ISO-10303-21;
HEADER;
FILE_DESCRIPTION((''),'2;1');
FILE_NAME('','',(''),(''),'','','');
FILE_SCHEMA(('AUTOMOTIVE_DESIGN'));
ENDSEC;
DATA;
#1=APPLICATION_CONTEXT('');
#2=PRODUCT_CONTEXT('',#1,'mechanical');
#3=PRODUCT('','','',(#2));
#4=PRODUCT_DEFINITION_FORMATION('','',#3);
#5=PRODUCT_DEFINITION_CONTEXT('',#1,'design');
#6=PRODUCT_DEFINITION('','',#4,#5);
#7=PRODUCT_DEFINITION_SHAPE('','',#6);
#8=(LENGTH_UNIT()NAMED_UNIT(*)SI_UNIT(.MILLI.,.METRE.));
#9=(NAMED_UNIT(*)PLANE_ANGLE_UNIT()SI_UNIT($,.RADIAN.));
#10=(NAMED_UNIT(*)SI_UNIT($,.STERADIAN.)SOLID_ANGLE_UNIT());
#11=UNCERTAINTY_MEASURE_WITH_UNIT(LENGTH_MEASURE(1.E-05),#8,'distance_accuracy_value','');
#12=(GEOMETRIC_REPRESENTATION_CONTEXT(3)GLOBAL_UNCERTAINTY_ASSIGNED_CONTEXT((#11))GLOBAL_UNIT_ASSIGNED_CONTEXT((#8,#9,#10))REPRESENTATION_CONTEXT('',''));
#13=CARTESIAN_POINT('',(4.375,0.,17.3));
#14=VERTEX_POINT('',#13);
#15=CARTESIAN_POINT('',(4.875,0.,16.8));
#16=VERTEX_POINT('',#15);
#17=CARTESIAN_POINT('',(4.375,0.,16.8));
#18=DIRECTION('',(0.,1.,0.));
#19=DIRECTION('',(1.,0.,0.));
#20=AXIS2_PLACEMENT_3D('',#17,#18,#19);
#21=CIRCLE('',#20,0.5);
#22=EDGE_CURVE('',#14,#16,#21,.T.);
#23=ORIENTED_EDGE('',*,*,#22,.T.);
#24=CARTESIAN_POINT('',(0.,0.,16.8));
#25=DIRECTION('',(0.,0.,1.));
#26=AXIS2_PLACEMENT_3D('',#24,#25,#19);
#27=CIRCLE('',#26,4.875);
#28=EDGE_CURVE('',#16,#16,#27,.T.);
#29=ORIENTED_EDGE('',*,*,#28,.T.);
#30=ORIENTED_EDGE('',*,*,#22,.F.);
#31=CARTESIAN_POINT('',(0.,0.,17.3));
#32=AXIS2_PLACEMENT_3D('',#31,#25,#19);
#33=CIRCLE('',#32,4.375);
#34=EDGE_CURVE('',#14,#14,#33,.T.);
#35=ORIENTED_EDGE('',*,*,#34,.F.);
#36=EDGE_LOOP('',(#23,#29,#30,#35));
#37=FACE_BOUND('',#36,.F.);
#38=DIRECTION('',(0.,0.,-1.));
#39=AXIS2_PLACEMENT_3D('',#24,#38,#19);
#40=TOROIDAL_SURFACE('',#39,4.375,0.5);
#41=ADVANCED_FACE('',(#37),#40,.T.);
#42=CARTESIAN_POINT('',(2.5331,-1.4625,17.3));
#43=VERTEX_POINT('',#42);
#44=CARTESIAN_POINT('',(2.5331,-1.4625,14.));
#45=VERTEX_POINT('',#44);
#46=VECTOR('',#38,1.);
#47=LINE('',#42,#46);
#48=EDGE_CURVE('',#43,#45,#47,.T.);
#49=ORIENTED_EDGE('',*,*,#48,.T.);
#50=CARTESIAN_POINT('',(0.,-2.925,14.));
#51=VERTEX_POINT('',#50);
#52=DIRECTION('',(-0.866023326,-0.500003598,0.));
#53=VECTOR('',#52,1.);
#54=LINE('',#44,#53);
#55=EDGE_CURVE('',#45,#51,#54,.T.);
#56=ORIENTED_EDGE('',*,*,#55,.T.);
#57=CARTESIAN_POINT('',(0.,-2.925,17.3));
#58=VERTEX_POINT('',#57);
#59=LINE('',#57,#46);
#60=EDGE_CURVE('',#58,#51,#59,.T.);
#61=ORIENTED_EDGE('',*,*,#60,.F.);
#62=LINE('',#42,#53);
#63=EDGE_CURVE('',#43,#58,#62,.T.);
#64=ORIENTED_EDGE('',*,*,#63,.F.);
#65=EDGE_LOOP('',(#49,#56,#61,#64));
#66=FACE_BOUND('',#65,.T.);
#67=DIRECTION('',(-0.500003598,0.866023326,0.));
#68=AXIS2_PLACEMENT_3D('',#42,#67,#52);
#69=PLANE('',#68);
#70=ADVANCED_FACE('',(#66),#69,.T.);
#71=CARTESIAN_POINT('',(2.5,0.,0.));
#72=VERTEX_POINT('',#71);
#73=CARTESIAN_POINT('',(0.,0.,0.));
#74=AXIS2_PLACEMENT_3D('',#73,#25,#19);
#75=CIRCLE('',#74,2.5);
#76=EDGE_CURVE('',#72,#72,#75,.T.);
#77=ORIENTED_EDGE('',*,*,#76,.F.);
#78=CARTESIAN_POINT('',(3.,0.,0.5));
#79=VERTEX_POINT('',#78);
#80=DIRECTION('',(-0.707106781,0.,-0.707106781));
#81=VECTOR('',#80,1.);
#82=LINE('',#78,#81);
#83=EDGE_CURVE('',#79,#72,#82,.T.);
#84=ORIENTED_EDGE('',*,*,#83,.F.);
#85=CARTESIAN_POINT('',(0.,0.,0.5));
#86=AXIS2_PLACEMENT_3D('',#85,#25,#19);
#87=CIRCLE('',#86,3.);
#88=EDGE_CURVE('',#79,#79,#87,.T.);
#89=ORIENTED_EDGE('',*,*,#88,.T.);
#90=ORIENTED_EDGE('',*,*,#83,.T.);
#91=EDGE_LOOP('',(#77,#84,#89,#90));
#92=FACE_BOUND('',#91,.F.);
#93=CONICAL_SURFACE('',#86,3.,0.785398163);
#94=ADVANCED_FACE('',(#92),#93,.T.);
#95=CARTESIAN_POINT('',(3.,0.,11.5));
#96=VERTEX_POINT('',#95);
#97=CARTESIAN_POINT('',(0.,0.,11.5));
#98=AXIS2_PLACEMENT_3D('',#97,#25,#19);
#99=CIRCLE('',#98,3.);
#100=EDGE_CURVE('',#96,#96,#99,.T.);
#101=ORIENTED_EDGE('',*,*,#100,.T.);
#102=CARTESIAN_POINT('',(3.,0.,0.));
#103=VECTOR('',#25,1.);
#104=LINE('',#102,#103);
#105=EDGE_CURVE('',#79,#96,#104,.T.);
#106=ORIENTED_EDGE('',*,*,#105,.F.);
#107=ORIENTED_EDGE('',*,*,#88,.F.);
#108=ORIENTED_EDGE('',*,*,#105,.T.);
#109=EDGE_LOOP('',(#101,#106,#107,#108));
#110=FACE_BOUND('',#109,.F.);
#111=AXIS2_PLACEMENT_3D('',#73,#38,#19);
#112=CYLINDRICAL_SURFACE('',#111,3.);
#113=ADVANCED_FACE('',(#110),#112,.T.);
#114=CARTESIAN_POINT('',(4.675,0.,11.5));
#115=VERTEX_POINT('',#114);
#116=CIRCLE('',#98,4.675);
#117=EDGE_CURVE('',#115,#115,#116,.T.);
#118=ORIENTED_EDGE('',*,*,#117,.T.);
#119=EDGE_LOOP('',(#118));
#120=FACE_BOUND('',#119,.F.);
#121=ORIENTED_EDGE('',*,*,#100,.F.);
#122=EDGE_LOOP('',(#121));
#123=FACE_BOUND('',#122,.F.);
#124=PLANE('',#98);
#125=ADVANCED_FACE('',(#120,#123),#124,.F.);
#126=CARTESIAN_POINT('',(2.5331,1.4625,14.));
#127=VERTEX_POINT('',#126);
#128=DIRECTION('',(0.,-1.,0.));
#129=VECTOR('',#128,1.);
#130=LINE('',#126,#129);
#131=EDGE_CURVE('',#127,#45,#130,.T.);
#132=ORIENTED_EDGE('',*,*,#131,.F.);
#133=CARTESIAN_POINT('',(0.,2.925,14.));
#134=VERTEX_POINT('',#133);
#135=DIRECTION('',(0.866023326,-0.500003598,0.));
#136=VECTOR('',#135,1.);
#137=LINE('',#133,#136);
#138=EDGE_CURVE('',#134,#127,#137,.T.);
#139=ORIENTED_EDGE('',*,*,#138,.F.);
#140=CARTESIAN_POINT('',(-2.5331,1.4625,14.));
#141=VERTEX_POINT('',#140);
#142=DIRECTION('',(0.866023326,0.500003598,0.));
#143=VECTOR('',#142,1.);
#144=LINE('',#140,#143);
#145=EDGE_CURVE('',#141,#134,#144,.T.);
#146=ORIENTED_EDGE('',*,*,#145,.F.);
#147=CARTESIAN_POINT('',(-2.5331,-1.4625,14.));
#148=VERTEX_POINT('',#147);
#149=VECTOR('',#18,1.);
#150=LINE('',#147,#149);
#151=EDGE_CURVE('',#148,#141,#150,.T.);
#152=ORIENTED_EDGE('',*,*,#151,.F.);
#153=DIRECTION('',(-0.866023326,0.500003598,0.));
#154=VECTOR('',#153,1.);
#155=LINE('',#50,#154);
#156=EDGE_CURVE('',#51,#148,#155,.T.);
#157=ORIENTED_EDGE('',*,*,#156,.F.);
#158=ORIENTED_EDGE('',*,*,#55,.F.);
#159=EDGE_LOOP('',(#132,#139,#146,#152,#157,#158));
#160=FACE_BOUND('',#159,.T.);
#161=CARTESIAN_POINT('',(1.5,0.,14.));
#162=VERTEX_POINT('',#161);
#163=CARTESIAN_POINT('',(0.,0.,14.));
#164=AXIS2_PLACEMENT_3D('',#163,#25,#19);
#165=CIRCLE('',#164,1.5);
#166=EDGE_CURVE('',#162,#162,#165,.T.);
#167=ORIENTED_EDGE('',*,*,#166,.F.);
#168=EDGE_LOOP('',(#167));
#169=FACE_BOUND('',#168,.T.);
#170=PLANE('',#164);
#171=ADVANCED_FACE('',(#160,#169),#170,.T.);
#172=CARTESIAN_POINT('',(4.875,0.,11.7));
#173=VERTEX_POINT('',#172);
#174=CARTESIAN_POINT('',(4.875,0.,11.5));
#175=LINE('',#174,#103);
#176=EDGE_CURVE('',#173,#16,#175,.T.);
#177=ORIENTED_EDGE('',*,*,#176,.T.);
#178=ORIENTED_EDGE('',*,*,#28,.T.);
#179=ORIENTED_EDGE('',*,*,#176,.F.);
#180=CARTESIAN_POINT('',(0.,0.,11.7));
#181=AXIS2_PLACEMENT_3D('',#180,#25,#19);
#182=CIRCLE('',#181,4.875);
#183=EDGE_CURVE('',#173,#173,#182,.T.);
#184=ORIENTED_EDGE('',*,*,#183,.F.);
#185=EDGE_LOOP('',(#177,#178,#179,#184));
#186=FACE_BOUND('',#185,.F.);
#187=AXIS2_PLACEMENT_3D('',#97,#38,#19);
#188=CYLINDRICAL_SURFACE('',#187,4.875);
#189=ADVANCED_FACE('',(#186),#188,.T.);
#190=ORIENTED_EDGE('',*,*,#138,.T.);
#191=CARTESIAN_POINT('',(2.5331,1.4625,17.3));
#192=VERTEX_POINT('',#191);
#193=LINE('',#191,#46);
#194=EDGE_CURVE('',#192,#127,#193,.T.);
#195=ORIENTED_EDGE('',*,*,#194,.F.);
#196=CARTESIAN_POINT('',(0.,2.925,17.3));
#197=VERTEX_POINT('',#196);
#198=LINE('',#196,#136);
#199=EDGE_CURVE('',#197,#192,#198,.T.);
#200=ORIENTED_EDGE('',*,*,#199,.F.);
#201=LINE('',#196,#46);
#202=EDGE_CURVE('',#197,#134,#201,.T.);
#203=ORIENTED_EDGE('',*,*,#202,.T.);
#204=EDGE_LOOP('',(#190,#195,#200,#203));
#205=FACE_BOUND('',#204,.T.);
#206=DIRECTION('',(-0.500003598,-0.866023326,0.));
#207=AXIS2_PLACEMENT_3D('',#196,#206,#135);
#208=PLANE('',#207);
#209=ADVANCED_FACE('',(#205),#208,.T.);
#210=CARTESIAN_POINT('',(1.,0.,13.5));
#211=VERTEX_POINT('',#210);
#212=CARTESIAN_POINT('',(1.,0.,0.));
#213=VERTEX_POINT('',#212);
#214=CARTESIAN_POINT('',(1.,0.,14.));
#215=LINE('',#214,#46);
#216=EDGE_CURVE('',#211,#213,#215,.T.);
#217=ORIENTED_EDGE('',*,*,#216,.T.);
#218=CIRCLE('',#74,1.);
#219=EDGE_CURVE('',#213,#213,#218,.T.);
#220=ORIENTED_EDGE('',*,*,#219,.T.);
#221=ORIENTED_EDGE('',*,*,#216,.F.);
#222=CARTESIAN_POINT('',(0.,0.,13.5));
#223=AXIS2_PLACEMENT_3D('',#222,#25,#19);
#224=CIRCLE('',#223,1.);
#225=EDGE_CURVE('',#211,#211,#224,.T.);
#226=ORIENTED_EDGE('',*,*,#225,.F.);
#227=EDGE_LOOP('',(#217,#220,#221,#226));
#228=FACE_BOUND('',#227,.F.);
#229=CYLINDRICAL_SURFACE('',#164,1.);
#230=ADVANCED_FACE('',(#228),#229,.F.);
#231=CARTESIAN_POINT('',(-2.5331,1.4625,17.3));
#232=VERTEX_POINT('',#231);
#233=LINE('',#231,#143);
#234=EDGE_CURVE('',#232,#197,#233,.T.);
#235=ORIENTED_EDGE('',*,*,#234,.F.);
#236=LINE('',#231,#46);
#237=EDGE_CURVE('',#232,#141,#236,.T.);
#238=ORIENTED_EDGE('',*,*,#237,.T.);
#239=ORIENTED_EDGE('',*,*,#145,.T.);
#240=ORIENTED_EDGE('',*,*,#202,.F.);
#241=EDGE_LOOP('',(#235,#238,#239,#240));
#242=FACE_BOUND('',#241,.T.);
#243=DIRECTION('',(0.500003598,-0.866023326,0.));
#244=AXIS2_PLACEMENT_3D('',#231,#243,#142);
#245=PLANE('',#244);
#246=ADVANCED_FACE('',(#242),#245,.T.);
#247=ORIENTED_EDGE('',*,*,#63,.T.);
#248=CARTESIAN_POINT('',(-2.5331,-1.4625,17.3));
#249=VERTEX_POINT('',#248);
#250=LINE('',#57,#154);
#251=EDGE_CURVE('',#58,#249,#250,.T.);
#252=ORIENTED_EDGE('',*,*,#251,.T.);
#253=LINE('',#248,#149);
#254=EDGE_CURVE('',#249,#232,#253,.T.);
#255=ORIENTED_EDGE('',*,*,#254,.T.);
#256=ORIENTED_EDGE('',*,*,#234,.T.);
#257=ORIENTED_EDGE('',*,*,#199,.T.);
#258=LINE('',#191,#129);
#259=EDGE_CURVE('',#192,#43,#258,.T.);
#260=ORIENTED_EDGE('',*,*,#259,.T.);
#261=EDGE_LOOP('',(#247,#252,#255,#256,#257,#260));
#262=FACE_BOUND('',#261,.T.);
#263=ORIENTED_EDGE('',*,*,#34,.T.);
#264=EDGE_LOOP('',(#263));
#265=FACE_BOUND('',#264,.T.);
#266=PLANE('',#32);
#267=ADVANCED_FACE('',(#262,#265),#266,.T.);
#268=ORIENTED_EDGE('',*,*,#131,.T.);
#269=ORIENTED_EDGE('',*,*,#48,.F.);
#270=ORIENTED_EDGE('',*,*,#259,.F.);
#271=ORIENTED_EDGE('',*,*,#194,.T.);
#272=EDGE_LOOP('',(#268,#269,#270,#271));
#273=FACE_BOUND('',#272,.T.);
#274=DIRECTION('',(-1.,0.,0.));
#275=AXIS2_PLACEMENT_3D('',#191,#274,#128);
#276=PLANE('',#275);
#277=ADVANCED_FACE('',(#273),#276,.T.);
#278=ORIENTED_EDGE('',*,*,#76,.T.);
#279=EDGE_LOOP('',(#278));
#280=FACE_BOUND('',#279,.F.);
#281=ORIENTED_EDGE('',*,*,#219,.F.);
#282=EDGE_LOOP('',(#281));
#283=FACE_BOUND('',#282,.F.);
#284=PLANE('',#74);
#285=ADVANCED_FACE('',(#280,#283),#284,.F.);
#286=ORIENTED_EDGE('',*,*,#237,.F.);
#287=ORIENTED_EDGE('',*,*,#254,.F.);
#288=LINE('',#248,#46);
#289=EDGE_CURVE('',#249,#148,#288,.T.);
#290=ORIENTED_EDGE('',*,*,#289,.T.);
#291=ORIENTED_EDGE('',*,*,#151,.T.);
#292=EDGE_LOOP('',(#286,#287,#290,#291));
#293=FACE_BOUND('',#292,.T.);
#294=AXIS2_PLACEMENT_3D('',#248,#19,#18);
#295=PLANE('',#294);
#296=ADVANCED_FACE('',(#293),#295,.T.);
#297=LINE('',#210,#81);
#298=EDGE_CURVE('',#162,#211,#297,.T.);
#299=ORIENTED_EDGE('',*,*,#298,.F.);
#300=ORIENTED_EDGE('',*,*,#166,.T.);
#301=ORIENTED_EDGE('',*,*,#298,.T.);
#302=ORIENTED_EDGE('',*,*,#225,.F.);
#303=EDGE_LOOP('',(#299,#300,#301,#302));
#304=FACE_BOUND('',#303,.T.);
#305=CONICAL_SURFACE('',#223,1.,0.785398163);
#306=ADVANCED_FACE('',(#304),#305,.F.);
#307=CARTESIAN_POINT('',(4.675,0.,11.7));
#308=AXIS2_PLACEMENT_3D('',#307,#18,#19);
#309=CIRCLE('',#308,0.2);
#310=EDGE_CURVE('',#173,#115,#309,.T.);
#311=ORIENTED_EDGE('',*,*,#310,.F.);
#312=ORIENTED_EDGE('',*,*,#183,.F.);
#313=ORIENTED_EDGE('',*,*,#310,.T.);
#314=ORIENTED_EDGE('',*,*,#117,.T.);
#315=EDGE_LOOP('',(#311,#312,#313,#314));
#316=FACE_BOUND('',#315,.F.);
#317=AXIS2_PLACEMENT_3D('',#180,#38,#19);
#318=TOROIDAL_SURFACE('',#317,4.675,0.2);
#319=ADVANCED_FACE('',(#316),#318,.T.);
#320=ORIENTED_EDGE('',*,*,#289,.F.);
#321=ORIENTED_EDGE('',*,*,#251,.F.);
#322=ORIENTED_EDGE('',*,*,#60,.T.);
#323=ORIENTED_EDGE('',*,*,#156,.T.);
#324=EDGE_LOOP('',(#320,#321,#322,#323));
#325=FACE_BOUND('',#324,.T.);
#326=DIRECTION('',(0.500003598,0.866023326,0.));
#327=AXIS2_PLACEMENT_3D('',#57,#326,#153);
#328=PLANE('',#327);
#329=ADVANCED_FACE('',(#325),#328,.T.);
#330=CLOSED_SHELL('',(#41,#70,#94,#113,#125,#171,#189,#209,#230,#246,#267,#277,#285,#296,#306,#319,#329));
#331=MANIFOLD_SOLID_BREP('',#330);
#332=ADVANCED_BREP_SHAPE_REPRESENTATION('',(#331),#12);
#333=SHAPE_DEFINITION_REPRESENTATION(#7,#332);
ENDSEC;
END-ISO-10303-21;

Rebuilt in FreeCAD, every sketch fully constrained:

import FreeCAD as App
import Part
import Sketcher
Q = App.Units.Quantity


def edges_at(feature, points):
    """Names of the edges that pass closest to the given points."""
    edges = feature.Shape.Edges
    near = lambda p: min(range(len(edges)), key=lambda i: edges[i].distToShape(Part.Vertex(*p))[0])
    return sorted({f"Edge{near(p) + 1}" for p in points})


def add_polygon(sketch, points):
    """Adds a closed chain of lines whose ends are joined by coincident constraints."""
    first, n = sketch.GeometryCount, len(points)
    for a, b in zip(points, points[1:] + points[:1]):
        sketch.addGeometry(Part.LineSegment(App.Vector(*a, 0), App.Vector(*b, 0)), False)
    for i in range(n):
        sketch.addConstraint(Sketcher.Constraint("Coincident", first + i, 2, first + (i + 1) % n, 1))

doc = App.newDocument("Part")
body = doc.addObject("PartDesign::Body", "Body")

# Sketch on XY plane
sketch1 = body.newObject("Sketcher::SketchObject", "Sketch")
sketch1.AttachmentSupport = (doc.getObject("XY_Plane"), [""])
sketch1.MapMode = "FlatFace"
sketch1.addGeometry(Part.Circle(App.Vector(0, 0, 0), App.Vector(0, 0, 1), 3), False)
sketch1.addConstraint([
    Sketcher.Constraint("Coincident", 0, 3, -1, 1),
    Sketcher.Constraint("Diameter", 0, 6.0),
])
pad1 = body.newObject("PartDesign::Pad", "Pad")
pad1.Profile = sketch1
pad1.Length = 11.5

# Sketch on XY plane
sketch2 = body.newObject("Sketcher::SketchObject", "Sketch001")
sketch2.AttachmentSupport = (doc.getObject("XY_Plane"), [""])
sketch2.MapMode = "FlatFace"
sketch2.AttachmentOffset = App.Placement(App.Vector(0, 0, 11.5), App.Rotation())
sketch2.addGeometry(Part.Circle(App.Vector(0, 0, 0), App.Vector(0, 0, 1), 4.875), False)
sketch2.addConstraint([
    Sketcher.Constraint("Coincident", 0, 3, -1, 1),
    Sketcher.Constraint("Diameter", 0, 9.75),
])
pad2 = body.newObject("PartDesign::Pad", "Pad001")
pad2.Profile = sketch2
pad2.Length = 5.8

# Sketch on XY plane
sketch3 = body.newObject("Sketcher::SketchObject", "Sketch002")
sketch3.AttachmentSupport = (doc.getObject("XY_Plane"), [""])
sketch3.MapMode = "FlatFace"
sketch3.AttachmentOffset = App.Placement(App.Vector(0, 0, 17.3), App.Rotation())
add_polygon(sketch3, [(0, -2.925), (2.5331, -1.4625), (2.5331, 1.4625), (0, 2.925), (-2.5331, 1.4625), (-2.5331, -1.4625)])  # lines 0-5
sketch3.addConstraint([
    Sketcher.Constraint("Vertical", 1),
    Sketcher.Constraint("Vertical", 4),
    Sketcher.Constraint("Symmetric", 0, 2, 3, 2, -1, 1),
    Sketcher.Constraint("Symmetric", 2, 2, 5, 2, -1, 1),
    Sketcher.Constraint("PointOnObject", 2, 2, -2),
    Sketcher.Constraint("Parallel", 2, 5),
    Sketcher.Constraint("Horizontal", 1, 2, 3, 2),
    Sketcher.Constraint("Angle", 0, Q("30.0002 deg")),
    Sketcher.Constraint("DistanceY", 5, 2, 2, 2, 5.85),
    Sketcher.Constraint("DistanceY", 1, 1, 1, 2, 2.925),
])
pocket1 = body.newObject("PartDesign::Pocket", "Pocket")
pocket1.Profile = sketch3
pocket1.Length = 3.3

# Sketch on XY plane
sketch4 = body.newObject("Sketcher::SketchObject", "Sketch003")
sketch4.AttachmentSupport = (doc.getObject("XY_Plane"), [""])
sketch4.MapMode = "FlatFace"
sketch4.AttachmentOffset = App.Placement(App.Vector(0, 0, 14), App.Rotation())
sketch4.addGeometry(Part.Circle(App.Vector(0, 0, 0), App.Vector(0, 0, 1), 1), False)
sketch4.addConstraint([
    Sketcher.Constraint("Coincident", 0, 3, -1, 1),
    Sketcher.Constraint("Diameter", 0, 2.0),
])
pocket2 = body.newObject("PartDesign::Pocket", "Pocket001")
pocket2.Profile = sketch4
pocket2.Type = "ThroughAll"
doc.recompute()

chamfer = body.newObject("PartDesign::Chamfer", "Chamfer")
chamfer.Base = (pocket2, edges_at(pocket2, [(-1, 0, 14)]))
chamfer.Size = 0.5
doc.recompute()

fillet = body.newObject("PartDesign::Fillet", "Fillet")
fillet.Base = (chamfer, edges_at(chamfer, [(-4.875, 0, 17.3)]))
fillet.Radius = 0.5
doc.recompute()

fillet2 = body.newObject("PartDesign::Fillet", "Fillet001")
fillet2.Base = (fillet, edges_at(fillet, [(-4.875, 0, 11.5)]))
fillet2.Radius = 0.2
doc.recompute()

chamfer2 = body.newObject("PartDesign::Chamfer", "Chamfer001")
chamfer2.Base = (fillet2, edges_at(fillet2, [(-3, 0, 0)]))
chamfer2.Size = 0.5

doc.recompute()
